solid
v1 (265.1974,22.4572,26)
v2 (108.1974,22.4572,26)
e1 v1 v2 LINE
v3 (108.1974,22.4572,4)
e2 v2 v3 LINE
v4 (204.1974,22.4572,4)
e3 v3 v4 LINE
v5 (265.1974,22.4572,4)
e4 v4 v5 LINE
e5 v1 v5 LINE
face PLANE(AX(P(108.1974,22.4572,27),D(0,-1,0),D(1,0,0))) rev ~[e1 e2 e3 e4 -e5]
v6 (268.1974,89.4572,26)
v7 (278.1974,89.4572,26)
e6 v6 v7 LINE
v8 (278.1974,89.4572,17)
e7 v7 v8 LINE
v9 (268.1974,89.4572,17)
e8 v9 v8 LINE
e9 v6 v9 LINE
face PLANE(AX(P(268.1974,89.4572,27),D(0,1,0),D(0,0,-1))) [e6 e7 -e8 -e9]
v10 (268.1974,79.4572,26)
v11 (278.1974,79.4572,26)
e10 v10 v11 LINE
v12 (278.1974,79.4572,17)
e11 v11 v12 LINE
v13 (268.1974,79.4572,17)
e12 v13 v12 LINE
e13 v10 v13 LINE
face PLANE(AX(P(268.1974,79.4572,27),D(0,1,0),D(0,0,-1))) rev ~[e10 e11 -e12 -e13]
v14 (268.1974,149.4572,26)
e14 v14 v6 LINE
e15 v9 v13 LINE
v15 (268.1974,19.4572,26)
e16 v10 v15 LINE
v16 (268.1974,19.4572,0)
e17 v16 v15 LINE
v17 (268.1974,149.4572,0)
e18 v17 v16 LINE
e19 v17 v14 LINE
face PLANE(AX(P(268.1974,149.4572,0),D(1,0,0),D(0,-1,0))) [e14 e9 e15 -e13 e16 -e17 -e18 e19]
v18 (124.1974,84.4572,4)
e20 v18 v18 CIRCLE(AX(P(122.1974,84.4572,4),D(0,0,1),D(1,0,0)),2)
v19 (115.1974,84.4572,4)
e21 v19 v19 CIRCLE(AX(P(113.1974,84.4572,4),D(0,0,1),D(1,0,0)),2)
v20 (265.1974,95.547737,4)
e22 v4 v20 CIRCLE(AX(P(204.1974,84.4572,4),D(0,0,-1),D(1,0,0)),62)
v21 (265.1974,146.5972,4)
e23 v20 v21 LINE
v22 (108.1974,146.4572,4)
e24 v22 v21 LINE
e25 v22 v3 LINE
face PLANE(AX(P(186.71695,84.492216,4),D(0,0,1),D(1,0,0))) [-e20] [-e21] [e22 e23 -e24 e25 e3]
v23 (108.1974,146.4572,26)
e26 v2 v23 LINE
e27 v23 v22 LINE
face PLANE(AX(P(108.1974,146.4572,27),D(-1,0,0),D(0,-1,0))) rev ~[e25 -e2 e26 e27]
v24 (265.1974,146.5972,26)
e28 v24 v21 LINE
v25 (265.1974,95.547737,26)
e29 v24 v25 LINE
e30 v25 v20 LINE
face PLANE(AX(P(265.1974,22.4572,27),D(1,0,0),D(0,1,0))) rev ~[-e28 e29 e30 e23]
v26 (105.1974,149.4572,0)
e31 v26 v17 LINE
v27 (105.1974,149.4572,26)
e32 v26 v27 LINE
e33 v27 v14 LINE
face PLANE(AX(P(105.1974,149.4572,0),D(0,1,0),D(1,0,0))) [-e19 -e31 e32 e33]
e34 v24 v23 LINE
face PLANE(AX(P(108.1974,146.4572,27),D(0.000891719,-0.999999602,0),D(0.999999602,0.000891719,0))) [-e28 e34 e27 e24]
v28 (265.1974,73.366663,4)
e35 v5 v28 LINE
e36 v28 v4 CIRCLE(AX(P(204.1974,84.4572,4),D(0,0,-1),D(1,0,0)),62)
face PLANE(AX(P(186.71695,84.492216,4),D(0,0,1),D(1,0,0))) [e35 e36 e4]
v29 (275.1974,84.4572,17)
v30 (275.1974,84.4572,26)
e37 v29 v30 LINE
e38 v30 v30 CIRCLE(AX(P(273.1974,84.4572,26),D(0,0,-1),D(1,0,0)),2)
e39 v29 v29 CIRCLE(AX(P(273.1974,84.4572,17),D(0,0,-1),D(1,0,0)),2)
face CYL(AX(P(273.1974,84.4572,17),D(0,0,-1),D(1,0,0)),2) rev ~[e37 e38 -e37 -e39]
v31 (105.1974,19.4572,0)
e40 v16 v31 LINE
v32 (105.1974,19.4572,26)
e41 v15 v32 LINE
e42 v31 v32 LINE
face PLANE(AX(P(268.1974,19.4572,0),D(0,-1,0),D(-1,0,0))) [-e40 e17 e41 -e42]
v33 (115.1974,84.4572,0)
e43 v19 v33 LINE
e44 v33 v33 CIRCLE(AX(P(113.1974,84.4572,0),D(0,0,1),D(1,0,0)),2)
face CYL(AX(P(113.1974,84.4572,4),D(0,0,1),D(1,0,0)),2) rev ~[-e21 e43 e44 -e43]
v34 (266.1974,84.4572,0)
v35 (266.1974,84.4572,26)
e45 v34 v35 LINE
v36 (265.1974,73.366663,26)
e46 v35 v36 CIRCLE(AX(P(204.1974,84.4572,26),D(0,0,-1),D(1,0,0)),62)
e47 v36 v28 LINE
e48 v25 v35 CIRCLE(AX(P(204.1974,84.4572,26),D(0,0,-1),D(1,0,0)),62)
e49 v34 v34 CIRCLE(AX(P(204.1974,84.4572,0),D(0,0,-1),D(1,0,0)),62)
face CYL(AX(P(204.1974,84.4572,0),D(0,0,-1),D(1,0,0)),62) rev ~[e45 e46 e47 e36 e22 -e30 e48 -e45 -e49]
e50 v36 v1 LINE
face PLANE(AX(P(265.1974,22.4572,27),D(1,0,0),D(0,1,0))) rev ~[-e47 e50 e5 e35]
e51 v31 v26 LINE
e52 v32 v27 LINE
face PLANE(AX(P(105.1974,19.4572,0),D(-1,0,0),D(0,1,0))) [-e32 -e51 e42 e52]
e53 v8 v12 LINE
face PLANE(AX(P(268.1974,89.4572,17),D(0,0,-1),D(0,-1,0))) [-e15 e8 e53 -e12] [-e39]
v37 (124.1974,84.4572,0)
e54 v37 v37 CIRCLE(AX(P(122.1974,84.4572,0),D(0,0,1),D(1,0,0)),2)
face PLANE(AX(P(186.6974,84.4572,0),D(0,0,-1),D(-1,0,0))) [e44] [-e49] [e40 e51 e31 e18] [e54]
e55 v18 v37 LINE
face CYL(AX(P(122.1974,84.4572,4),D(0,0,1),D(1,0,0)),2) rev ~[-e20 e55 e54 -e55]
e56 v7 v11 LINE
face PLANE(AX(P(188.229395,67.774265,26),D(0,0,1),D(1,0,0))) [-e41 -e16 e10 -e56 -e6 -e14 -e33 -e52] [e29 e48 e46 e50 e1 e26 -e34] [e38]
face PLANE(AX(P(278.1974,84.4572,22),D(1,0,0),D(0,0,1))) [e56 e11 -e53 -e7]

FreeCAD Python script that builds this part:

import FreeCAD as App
import Part
import Sketcher

V = App.Vector
Q = App.Units.Quantity


def add_polygon(sketch, points):
    """Adds a closed chain of lines whose ends are joined by coincident constraints."""
    first, n = sketch.GeometryCount, len(points)
    for a, b in zip(points, points[1:] + points[:1]):
        sketch.addGeometry(Part.LineSegment(App.Vector(*a, 0), App.Vector(*b, 0)), False)
    for i in range(n):
        sketch.addConstraint(Sketcher.Constraint("Coincident", first + i, 2, first + (i + 1) % n, 1))

doc = App.newDocument("Part")
body = doc.addObject("PartDesign::Body", "Body")

sketch1 = body.newObject("Sketcher::SketchObject", "Sketch")
sketch1.AttachmentSupport = (doc.getObject("XY_Plane"), [""])
sketch1.MapMode = "FlatFace"
add_polygon(sketch1, [(268, 149), (105, 149), (105, 19), (268, 19)])
sketch1.addConstraint([
    Sketcher.Constraint("Horizontal", 0),
    Sketcher.Constraint("Vertical", 1),
    Sketcher.Constraint("Horizontal", 2),
    Sketcher.Constraint("Vertical", 3),
    Sketcher.Constraint("DistanceX", 0, 2, 0, 1, Q("163 mm")),
    Sketcher.Constraint("DistanceY", 1, 2, 1, 1, Q("130 mm")),
    Sketcher.Constraint("DistanceX", -1, 1, 0, 2, Q("105.1974 mm")),
    Sketcher.Constraint("DistanceY", -1, 1, 0, 2, Q("149.4572 mm")),
])
pad1 = body.newObject("PartDesign::Pad", "Pad")
pad1.Profile = sketch1
pad1.Length = 27

sketch2 = body.newObject("Sketcher::SketchObject", "Sketch001")
sketch2.AttachmentSupport = (doc.getObject("XY_Plane"), [""])
sketch2.MapMode = "FlatFace"
sketch2.AttachmentOffset = App.Placement(V(0, 0, 27), App.Rotation())
add_polygon(sketch2, [(265, 147), (108, 146), (108, 22), (265, 22)])
sketch2.addConstraint([
    Sketcher.Constraint("Vertical", 1),
    Sketcher.Constraint("Horizontal", 2),
    Sketcher.Constraint("Vertical", 3),
    Sketcher.Constraint("DistanceX", 2, 1, 2, 2, Q("157 mm")),
    Sketcher.Constraint("DistanceY", 1, 2, 1, 1, Q("124 mm")),
    Sketcher.Constraint("DistanceY", 3, 1, 3, 2, Q("124.14 mm")),
    Sketcher.Constraint("DistanceX", -1, 1, 0, 2, Q("108.1974 mm")),
    Sketcher.Constraint("DistanceY", -1, 1, 0, 2, Q("146.4572 mm")),
])
pocket1 = body.newObject("PartDesign::Pocket", "Pocket")
pocket1.Profile = sketch2
pocket1.Length = 23

sketch3 = body.newObject("Sketcher::SketchObject", "Sketch002")
sketch3.AttachmentSupport = (doc.getObject("XY_Plane"), [""])
sketch3.MapMode = "FlatFace"
sketch3.AttachmentOffset = App.Placement(V(0, 0, 4), App.Rotation())
sketch3.addGeometry([
    Part.Circle(V(113.2, 84.5, 0), V(0, 0, 1), 2),
    Part.Circle(V(122.2, 84.5, 0), V(0, 0, 1), 2),
], False)
sketch3.addConstraint([
    Sketcher.Constraint("Equal", 0, 1),
    Sketcher.Constraint("Horizontal", 0, 3, 1, 3),
    Sketcher.Constraint("Diameter", 0, Q("4 mm")),
    Sketcher.Constraint("DistanceX", 0, 3, 1, 3, Q("9 mm")),
    Sketcher.Constraint("DistanceX", -1, 1, 0, 3, Q("113.1974 mm")),
    Sketcher.Constraint("DistanceY", -1, 1, 0, 3, Q("84.4572 mm")),
])
pocket2 = body.newObject("PartDesign::Pocket", "Pocket001")
pocket2.Profile = sketch3
pocket2.Type = "ThroughAll"

sketch4 = body.newObject("Sketcher::SketchObject", "Sketch003")
sketch4.AttachmentSupport = (doc.getObject("XY_Plane"), [""])
sketch4.MapMode = "FlatFace"
sketch4.addGeometry(Part.Circle(V(204, 84, 0), V(0, 0, 1), 62), False)
sketch4.addConstraint([
    Sketcher.Constraint("Diameter", 0, Q("124 mm")),
    Sketcher.Constraint("DistanceX", -1, 1, 0, 3, Q("204.1974 mm")),
    Sketcher.Constraint("DistanceY", -1, 1, 0, 3, Q("84.4572 mm")),
])
pocket3 = body.newObject("PartDesign::Pocket", "Pocket002")
pocket3.Profile = sketch4
pocket3.Type = "ThroughAll"
pocket3.Reversed = True

sketch5 = body.newObject("Sketcher::SketchObject", "Sketch004")
sketch5.AttachmentSupport = (doc.getObject("YZ_Plane"), [""])
sketch5.MapMode = "FlatFace"
sketch5.AttachmentOffset = App.Placement(V(0, 0, 268.1974), App.Rotation())
add_polygon(sketch5, [(89, 27), (79, 27), (79, 17), (89, 17)])
sketch5.addConstraint([
    Sketcher.Constraint("Horizontal", 0),
    Sketcher.Constraint("Vertical", 1),
    Sketcher.Constraint("Horizontal", 2),
    Sketcher.Constraint("Vertical", 3),
    Sketcher.Constraint("Equal", 2, 1),
    Sketcher.Constraint("DistanceX", 0, 2, 0, 1, Q("10 mm")),
    Sketcher.Constraint("DistanceY", -1, 1, 0, 2, Q("27 mm")),
    Sketcher.Constraint("DistanceX", -1, 1, 0, 2, Q("79.4572 mm")),
])
pad2 = body.newObject("PartDesign::Pad", "Pad001")
pad2.Profile = sketch5
pad2.Length = 10

sketch6 = body.newObject("Sketcher::SketchObject", "Sketch005")
sketch6.AttachmentSupport = (doc.getObject("XY_Plane"), [""])
sketch6.MapMode = "FlatFace"
sketch6.AttachmentOffset = App.Placement(V(0, 0, 17), App.Rotation())
sketch6.addGeometry(Part.Circle(V(273.2, 84.5, 0), V(0, 0, 1), 2), False)
sketch6.addConstraint([
    Sketcher.Constraint("Diameter", 0, Q("4 mm")),
    Sketcher.Constraint("DistanceX", -1, 1, 0, 3, Q("273.1974 mm")),
    Sketcher.Constraint("DistanceY", -1, 1, 0, 3, Q("84.4572 mm")),
])
pocket4 = body.newObject("PartDesign::Pocket", "Pocket003")
pocket4.Profile = sketch6
pocket4.Type = "ThroughAll"
pocket4.Reversed = True

sketch7 = body.newObject("Sketcher::SketchObject", "Sketch006")
sketch7.AttachmentSupport = (doc.getObject("XY_Plane"), [""])
sketch7.MapMode = "FlatFace"
sketch7.AttachmentOffset = App.Placement(V(0, 0, 27), App.Rotation())
add_polygon(sketch7, [(303, 176), (70, 176), (70, -42), (315, -34)])
sketch7.addConstraint([
    Sketcher.Constraint("Horizontal", 0),
    Sketcher.Constraint("Vertical", 1),
    Sketcher.Constraint("DistanceY", 1, 2, 1, 1, Q("218.088 mm")),
    Sketcher.Constraint("Distance", 3, Q("210.679 mm")),
    Sketcher.Constraint("DistanceX", 0, 2, 0, 1, Q("232.9847 mm")),
    Sketcher.Constraint("DistanceY", 2, 2, -1, 1, Q("34.022 mm")),
    Sketcher.Constraint("DistanceX", -1, 1, 3, 2, Q("302.679 mm")),
    Sketcher.Constraint("DistanceX", 1, 2, 2, 2, Q("244.902 mm")),
])
pocket5 = body.newObject("PartDesign::Pocket", "Pocket004")
pocket5.Profile = sketch7
pocket5.Length = 1

doc.recompute()
